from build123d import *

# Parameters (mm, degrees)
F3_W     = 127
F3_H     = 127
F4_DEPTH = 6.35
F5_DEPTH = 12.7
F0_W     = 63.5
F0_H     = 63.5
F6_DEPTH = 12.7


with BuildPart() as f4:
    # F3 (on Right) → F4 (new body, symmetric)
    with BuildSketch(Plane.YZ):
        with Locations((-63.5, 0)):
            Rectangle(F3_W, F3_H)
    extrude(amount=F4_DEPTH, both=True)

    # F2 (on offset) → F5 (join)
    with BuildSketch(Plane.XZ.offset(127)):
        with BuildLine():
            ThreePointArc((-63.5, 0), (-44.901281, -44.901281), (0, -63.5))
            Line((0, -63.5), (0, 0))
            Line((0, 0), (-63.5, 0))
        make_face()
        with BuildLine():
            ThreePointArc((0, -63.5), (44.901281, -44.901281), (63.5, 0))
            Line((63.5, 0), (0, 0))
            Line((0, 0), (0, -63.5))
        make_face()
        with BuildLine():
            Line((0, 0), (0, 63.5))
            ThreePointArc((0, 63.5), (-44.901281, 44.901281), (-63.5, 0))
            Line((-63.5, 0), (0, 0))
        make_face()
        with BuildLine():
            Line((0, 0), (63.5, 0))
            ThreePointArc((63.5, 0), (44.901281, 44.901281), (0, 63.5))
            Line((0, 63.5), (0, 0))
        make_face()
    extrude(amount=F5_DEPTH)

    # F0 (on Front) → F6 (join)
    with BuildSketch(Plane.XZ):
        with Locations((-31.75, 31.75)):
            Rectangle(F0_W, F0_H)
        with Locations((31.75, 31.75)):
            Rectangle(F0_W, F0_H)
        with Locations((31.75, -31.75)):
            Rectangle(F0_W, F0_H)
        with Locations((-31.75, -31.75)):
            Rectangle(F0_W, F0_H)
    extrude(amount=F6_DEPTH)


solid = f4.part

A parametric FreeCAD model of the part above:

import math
import FreeCAD as App
import Part
import Sketcher

V = App.Vector
Q = App.Units.Quantity


def add_polygon(sketch, points):
    """Adds a closed chain of lines whose ends are joined by coincident constraints."""
    first, n = sketch.GeometryCount, len(points)
    for a, b in zip(points, points[1:] + points[:1]):
        sketch.addGeometry(Part.LineSegment(App.Vector(*a, 0), App.Vector(*b, 0)), False)
    for i in range(n):
        sketch.addConstraint(Sketcher.Constraint("Coincident", first + i, 2, first + (i + 1) % n, 1))

doc = App.newDocument("Part")
params = doc.addObject("Spreadsheet::Sheet", "Params")
for row, (alias, value) in enumerate([
    ("sketch1_width", "5 in"),
    ("pad1_length", "0.5 in"),
    ("sketch2_radius", "2.4999999 in"),
    ("pad2_length", "0.5 in"),
    ("sketch3_width", "5 in"),
    ("pad3_length", "0.5 in"),
], start=1):
    params.set(f"A{row}", alias)
    params.set(f"B{row}", "=" + value)
    params.setAlias(f"B{row}", alias)

body = doc.addObject("PartDesign::Body", "Body")

sketch1 = body.newObject("Sketcher::SketchObject", "Sketch")
sketch1.AttachmentSupport = (doc.getObject("YZ_Plane"), [""])
sketch1.MapMode = "FlatFace"
add_polygon(sketch1, [(-127, 64), (-127, -64), (0, -64), (0, 64)])
sketch1.addConstraint(Sketcher.Constraint("Vertical", 0))
sketch1.addConstraint(Sketcher.Constraint("Horizontal", 1))
sketch1.addConstraint(Sketcher.Constraint("Vertical", 2))
sketch1.addConstraint(Sketcher.Constraint("Horizontal", 3))
sketch1.addConstraint(Sketcher.Constraint("Symmetric", 1, 2, 2, 2, -1, 1))
sketch1.addConstraint(Sketcher.Constraint("Equal", 3, 0))
sketch1.addConstraint(Sketcher.Constraint("DistanceX", 1, 1, 1, 2, Q("5 in")))
sketch1.setExpression("Constraints[10]", "Params.sketch1_width")
pad1 = body.newObject("PartDesign::Pad", "Pad")
pad1.Profile = sketch1
pad1.setExpression("Length", "Params.pad1_length")
pad1.Midplane = True

sketch2 = body.newObject("Sketcher::SketchObject", "Sketch001")
sketch2.AttachmentSupport = (doc.getObject("XZ_Plane"), [""])
sketch2.MapMode = "FlatFace"
sketch2.AttachmentOffset = App.Placement(V(0, 0, 5 * 25.4), App.Rotation())
sketch2.addGeometry(Part.ArcOfCircle(Part.Circle(V(0, 0, 0), V(0, 0, 1), 63), math.radians(180), math.radians(270)), False)
sketch2.addGeometry(Part.ArcOfCircle(Part.Circle(V(0, 0, 0), V(0, 0, 1), 63), math.radians(-90), math.radians(0)), False)
sketch2.addGeometry(Part.ArcOfCircle(Part.Circle(V(0, 0, 0), V(0, 0, 1), 63), math.radians(0), math.radians(90)), False)
sketch2.addGeometry(Part.ArcOfCircle(Part.Circle(V(0, 0, 0), V(0, 0, 1), 63), math.radians(90), math.radians(180)), False)
sketch2.addConstraint(Sketcher.Constraint("Tangent", 0, 2, 1, 1))
sketch2.addConstraint(Sketcher.Constraint("Tangent", 1, 2, 2, 1))
sketch2.addConstraint(Sketcher.Constraint("Tangent", 2, 2, 3, 1))
sketch2.addConstraint(Sketcher.Constraint("Tangent", 3, 2, 0, 1))
sketch2.addConstraint(Sketcher.Constraint("Coincident", 0, 3, -1, 1))
sketch2.addConstraint(Sketcher.Constraint("Equal", 0, 1))
sketch2.addConstraint(Sketcher.Constraint("PointOnObject", 0, 2, -2))
sketch2.addConstraint(Sketcher.Constraint("PointOnObject", 1, 2, -1))
sketch2.addConstraint(Sketcher.Constraint("PointOnObject", 2, 2, -2))
sketch2.addConstraint(Sketcher.Constraint("PointOnObject", 3, 2, -1))
sketch2.addConstraint(Sketcher.Constraint("Radius", 0, Q("2.4999999 in")))
sketch2.setExpression("Constraints[10]", "Params.sketch2_radius")
pad2 = body.newObject("PartDesign::Pad", "Pad001")
pad2.Profile = sketch2
pad2.setExpression("Length", "Params.pad2_length")

sketch3 = body.newObject("Sketcher::SketchObject", "Sketch002")
sketch3.AttachmentSupport = (doc.getObject("XZ_Plane"), [""])
sketch3.MapMode = "FlatFace"
add_polygon(sketch3, [(-64, 64), (-64, -64), (64, -64), (64, 64)])
sketch3.addConstraint(Sketcher.Constraint("Vertical", 0))
sketch3.addConstraint(Sketcher.Constraint("Horizontal", 1))
sketch3.addConstraint(Sketcher.Constraint("Vertical", 2))
sketch3.addConstraint(Sketcher.Constraint("Horizontal", 3))
sketch3.addConstraint(Sketcher.Constraint("Symmetric", 0, 2, 2, 2, -1, 1))
sketch3.addConstraint(Sketcher.Constraint("Equal", 3, 0))
sketch3.addConstraint(Sketcher.Constraint("DistanceX", 1, 1, 1, 2, Q("5 in")))
sketch3.setExpression("Constraints[10]", "Params.sketch3_width")
pad3 = body.newObject("PartDesign::Pad", "Pad002")
pad3.Profile = sketch3
pad3.setExpression("Length", "Params.pad3_length")

doc.recompute()
